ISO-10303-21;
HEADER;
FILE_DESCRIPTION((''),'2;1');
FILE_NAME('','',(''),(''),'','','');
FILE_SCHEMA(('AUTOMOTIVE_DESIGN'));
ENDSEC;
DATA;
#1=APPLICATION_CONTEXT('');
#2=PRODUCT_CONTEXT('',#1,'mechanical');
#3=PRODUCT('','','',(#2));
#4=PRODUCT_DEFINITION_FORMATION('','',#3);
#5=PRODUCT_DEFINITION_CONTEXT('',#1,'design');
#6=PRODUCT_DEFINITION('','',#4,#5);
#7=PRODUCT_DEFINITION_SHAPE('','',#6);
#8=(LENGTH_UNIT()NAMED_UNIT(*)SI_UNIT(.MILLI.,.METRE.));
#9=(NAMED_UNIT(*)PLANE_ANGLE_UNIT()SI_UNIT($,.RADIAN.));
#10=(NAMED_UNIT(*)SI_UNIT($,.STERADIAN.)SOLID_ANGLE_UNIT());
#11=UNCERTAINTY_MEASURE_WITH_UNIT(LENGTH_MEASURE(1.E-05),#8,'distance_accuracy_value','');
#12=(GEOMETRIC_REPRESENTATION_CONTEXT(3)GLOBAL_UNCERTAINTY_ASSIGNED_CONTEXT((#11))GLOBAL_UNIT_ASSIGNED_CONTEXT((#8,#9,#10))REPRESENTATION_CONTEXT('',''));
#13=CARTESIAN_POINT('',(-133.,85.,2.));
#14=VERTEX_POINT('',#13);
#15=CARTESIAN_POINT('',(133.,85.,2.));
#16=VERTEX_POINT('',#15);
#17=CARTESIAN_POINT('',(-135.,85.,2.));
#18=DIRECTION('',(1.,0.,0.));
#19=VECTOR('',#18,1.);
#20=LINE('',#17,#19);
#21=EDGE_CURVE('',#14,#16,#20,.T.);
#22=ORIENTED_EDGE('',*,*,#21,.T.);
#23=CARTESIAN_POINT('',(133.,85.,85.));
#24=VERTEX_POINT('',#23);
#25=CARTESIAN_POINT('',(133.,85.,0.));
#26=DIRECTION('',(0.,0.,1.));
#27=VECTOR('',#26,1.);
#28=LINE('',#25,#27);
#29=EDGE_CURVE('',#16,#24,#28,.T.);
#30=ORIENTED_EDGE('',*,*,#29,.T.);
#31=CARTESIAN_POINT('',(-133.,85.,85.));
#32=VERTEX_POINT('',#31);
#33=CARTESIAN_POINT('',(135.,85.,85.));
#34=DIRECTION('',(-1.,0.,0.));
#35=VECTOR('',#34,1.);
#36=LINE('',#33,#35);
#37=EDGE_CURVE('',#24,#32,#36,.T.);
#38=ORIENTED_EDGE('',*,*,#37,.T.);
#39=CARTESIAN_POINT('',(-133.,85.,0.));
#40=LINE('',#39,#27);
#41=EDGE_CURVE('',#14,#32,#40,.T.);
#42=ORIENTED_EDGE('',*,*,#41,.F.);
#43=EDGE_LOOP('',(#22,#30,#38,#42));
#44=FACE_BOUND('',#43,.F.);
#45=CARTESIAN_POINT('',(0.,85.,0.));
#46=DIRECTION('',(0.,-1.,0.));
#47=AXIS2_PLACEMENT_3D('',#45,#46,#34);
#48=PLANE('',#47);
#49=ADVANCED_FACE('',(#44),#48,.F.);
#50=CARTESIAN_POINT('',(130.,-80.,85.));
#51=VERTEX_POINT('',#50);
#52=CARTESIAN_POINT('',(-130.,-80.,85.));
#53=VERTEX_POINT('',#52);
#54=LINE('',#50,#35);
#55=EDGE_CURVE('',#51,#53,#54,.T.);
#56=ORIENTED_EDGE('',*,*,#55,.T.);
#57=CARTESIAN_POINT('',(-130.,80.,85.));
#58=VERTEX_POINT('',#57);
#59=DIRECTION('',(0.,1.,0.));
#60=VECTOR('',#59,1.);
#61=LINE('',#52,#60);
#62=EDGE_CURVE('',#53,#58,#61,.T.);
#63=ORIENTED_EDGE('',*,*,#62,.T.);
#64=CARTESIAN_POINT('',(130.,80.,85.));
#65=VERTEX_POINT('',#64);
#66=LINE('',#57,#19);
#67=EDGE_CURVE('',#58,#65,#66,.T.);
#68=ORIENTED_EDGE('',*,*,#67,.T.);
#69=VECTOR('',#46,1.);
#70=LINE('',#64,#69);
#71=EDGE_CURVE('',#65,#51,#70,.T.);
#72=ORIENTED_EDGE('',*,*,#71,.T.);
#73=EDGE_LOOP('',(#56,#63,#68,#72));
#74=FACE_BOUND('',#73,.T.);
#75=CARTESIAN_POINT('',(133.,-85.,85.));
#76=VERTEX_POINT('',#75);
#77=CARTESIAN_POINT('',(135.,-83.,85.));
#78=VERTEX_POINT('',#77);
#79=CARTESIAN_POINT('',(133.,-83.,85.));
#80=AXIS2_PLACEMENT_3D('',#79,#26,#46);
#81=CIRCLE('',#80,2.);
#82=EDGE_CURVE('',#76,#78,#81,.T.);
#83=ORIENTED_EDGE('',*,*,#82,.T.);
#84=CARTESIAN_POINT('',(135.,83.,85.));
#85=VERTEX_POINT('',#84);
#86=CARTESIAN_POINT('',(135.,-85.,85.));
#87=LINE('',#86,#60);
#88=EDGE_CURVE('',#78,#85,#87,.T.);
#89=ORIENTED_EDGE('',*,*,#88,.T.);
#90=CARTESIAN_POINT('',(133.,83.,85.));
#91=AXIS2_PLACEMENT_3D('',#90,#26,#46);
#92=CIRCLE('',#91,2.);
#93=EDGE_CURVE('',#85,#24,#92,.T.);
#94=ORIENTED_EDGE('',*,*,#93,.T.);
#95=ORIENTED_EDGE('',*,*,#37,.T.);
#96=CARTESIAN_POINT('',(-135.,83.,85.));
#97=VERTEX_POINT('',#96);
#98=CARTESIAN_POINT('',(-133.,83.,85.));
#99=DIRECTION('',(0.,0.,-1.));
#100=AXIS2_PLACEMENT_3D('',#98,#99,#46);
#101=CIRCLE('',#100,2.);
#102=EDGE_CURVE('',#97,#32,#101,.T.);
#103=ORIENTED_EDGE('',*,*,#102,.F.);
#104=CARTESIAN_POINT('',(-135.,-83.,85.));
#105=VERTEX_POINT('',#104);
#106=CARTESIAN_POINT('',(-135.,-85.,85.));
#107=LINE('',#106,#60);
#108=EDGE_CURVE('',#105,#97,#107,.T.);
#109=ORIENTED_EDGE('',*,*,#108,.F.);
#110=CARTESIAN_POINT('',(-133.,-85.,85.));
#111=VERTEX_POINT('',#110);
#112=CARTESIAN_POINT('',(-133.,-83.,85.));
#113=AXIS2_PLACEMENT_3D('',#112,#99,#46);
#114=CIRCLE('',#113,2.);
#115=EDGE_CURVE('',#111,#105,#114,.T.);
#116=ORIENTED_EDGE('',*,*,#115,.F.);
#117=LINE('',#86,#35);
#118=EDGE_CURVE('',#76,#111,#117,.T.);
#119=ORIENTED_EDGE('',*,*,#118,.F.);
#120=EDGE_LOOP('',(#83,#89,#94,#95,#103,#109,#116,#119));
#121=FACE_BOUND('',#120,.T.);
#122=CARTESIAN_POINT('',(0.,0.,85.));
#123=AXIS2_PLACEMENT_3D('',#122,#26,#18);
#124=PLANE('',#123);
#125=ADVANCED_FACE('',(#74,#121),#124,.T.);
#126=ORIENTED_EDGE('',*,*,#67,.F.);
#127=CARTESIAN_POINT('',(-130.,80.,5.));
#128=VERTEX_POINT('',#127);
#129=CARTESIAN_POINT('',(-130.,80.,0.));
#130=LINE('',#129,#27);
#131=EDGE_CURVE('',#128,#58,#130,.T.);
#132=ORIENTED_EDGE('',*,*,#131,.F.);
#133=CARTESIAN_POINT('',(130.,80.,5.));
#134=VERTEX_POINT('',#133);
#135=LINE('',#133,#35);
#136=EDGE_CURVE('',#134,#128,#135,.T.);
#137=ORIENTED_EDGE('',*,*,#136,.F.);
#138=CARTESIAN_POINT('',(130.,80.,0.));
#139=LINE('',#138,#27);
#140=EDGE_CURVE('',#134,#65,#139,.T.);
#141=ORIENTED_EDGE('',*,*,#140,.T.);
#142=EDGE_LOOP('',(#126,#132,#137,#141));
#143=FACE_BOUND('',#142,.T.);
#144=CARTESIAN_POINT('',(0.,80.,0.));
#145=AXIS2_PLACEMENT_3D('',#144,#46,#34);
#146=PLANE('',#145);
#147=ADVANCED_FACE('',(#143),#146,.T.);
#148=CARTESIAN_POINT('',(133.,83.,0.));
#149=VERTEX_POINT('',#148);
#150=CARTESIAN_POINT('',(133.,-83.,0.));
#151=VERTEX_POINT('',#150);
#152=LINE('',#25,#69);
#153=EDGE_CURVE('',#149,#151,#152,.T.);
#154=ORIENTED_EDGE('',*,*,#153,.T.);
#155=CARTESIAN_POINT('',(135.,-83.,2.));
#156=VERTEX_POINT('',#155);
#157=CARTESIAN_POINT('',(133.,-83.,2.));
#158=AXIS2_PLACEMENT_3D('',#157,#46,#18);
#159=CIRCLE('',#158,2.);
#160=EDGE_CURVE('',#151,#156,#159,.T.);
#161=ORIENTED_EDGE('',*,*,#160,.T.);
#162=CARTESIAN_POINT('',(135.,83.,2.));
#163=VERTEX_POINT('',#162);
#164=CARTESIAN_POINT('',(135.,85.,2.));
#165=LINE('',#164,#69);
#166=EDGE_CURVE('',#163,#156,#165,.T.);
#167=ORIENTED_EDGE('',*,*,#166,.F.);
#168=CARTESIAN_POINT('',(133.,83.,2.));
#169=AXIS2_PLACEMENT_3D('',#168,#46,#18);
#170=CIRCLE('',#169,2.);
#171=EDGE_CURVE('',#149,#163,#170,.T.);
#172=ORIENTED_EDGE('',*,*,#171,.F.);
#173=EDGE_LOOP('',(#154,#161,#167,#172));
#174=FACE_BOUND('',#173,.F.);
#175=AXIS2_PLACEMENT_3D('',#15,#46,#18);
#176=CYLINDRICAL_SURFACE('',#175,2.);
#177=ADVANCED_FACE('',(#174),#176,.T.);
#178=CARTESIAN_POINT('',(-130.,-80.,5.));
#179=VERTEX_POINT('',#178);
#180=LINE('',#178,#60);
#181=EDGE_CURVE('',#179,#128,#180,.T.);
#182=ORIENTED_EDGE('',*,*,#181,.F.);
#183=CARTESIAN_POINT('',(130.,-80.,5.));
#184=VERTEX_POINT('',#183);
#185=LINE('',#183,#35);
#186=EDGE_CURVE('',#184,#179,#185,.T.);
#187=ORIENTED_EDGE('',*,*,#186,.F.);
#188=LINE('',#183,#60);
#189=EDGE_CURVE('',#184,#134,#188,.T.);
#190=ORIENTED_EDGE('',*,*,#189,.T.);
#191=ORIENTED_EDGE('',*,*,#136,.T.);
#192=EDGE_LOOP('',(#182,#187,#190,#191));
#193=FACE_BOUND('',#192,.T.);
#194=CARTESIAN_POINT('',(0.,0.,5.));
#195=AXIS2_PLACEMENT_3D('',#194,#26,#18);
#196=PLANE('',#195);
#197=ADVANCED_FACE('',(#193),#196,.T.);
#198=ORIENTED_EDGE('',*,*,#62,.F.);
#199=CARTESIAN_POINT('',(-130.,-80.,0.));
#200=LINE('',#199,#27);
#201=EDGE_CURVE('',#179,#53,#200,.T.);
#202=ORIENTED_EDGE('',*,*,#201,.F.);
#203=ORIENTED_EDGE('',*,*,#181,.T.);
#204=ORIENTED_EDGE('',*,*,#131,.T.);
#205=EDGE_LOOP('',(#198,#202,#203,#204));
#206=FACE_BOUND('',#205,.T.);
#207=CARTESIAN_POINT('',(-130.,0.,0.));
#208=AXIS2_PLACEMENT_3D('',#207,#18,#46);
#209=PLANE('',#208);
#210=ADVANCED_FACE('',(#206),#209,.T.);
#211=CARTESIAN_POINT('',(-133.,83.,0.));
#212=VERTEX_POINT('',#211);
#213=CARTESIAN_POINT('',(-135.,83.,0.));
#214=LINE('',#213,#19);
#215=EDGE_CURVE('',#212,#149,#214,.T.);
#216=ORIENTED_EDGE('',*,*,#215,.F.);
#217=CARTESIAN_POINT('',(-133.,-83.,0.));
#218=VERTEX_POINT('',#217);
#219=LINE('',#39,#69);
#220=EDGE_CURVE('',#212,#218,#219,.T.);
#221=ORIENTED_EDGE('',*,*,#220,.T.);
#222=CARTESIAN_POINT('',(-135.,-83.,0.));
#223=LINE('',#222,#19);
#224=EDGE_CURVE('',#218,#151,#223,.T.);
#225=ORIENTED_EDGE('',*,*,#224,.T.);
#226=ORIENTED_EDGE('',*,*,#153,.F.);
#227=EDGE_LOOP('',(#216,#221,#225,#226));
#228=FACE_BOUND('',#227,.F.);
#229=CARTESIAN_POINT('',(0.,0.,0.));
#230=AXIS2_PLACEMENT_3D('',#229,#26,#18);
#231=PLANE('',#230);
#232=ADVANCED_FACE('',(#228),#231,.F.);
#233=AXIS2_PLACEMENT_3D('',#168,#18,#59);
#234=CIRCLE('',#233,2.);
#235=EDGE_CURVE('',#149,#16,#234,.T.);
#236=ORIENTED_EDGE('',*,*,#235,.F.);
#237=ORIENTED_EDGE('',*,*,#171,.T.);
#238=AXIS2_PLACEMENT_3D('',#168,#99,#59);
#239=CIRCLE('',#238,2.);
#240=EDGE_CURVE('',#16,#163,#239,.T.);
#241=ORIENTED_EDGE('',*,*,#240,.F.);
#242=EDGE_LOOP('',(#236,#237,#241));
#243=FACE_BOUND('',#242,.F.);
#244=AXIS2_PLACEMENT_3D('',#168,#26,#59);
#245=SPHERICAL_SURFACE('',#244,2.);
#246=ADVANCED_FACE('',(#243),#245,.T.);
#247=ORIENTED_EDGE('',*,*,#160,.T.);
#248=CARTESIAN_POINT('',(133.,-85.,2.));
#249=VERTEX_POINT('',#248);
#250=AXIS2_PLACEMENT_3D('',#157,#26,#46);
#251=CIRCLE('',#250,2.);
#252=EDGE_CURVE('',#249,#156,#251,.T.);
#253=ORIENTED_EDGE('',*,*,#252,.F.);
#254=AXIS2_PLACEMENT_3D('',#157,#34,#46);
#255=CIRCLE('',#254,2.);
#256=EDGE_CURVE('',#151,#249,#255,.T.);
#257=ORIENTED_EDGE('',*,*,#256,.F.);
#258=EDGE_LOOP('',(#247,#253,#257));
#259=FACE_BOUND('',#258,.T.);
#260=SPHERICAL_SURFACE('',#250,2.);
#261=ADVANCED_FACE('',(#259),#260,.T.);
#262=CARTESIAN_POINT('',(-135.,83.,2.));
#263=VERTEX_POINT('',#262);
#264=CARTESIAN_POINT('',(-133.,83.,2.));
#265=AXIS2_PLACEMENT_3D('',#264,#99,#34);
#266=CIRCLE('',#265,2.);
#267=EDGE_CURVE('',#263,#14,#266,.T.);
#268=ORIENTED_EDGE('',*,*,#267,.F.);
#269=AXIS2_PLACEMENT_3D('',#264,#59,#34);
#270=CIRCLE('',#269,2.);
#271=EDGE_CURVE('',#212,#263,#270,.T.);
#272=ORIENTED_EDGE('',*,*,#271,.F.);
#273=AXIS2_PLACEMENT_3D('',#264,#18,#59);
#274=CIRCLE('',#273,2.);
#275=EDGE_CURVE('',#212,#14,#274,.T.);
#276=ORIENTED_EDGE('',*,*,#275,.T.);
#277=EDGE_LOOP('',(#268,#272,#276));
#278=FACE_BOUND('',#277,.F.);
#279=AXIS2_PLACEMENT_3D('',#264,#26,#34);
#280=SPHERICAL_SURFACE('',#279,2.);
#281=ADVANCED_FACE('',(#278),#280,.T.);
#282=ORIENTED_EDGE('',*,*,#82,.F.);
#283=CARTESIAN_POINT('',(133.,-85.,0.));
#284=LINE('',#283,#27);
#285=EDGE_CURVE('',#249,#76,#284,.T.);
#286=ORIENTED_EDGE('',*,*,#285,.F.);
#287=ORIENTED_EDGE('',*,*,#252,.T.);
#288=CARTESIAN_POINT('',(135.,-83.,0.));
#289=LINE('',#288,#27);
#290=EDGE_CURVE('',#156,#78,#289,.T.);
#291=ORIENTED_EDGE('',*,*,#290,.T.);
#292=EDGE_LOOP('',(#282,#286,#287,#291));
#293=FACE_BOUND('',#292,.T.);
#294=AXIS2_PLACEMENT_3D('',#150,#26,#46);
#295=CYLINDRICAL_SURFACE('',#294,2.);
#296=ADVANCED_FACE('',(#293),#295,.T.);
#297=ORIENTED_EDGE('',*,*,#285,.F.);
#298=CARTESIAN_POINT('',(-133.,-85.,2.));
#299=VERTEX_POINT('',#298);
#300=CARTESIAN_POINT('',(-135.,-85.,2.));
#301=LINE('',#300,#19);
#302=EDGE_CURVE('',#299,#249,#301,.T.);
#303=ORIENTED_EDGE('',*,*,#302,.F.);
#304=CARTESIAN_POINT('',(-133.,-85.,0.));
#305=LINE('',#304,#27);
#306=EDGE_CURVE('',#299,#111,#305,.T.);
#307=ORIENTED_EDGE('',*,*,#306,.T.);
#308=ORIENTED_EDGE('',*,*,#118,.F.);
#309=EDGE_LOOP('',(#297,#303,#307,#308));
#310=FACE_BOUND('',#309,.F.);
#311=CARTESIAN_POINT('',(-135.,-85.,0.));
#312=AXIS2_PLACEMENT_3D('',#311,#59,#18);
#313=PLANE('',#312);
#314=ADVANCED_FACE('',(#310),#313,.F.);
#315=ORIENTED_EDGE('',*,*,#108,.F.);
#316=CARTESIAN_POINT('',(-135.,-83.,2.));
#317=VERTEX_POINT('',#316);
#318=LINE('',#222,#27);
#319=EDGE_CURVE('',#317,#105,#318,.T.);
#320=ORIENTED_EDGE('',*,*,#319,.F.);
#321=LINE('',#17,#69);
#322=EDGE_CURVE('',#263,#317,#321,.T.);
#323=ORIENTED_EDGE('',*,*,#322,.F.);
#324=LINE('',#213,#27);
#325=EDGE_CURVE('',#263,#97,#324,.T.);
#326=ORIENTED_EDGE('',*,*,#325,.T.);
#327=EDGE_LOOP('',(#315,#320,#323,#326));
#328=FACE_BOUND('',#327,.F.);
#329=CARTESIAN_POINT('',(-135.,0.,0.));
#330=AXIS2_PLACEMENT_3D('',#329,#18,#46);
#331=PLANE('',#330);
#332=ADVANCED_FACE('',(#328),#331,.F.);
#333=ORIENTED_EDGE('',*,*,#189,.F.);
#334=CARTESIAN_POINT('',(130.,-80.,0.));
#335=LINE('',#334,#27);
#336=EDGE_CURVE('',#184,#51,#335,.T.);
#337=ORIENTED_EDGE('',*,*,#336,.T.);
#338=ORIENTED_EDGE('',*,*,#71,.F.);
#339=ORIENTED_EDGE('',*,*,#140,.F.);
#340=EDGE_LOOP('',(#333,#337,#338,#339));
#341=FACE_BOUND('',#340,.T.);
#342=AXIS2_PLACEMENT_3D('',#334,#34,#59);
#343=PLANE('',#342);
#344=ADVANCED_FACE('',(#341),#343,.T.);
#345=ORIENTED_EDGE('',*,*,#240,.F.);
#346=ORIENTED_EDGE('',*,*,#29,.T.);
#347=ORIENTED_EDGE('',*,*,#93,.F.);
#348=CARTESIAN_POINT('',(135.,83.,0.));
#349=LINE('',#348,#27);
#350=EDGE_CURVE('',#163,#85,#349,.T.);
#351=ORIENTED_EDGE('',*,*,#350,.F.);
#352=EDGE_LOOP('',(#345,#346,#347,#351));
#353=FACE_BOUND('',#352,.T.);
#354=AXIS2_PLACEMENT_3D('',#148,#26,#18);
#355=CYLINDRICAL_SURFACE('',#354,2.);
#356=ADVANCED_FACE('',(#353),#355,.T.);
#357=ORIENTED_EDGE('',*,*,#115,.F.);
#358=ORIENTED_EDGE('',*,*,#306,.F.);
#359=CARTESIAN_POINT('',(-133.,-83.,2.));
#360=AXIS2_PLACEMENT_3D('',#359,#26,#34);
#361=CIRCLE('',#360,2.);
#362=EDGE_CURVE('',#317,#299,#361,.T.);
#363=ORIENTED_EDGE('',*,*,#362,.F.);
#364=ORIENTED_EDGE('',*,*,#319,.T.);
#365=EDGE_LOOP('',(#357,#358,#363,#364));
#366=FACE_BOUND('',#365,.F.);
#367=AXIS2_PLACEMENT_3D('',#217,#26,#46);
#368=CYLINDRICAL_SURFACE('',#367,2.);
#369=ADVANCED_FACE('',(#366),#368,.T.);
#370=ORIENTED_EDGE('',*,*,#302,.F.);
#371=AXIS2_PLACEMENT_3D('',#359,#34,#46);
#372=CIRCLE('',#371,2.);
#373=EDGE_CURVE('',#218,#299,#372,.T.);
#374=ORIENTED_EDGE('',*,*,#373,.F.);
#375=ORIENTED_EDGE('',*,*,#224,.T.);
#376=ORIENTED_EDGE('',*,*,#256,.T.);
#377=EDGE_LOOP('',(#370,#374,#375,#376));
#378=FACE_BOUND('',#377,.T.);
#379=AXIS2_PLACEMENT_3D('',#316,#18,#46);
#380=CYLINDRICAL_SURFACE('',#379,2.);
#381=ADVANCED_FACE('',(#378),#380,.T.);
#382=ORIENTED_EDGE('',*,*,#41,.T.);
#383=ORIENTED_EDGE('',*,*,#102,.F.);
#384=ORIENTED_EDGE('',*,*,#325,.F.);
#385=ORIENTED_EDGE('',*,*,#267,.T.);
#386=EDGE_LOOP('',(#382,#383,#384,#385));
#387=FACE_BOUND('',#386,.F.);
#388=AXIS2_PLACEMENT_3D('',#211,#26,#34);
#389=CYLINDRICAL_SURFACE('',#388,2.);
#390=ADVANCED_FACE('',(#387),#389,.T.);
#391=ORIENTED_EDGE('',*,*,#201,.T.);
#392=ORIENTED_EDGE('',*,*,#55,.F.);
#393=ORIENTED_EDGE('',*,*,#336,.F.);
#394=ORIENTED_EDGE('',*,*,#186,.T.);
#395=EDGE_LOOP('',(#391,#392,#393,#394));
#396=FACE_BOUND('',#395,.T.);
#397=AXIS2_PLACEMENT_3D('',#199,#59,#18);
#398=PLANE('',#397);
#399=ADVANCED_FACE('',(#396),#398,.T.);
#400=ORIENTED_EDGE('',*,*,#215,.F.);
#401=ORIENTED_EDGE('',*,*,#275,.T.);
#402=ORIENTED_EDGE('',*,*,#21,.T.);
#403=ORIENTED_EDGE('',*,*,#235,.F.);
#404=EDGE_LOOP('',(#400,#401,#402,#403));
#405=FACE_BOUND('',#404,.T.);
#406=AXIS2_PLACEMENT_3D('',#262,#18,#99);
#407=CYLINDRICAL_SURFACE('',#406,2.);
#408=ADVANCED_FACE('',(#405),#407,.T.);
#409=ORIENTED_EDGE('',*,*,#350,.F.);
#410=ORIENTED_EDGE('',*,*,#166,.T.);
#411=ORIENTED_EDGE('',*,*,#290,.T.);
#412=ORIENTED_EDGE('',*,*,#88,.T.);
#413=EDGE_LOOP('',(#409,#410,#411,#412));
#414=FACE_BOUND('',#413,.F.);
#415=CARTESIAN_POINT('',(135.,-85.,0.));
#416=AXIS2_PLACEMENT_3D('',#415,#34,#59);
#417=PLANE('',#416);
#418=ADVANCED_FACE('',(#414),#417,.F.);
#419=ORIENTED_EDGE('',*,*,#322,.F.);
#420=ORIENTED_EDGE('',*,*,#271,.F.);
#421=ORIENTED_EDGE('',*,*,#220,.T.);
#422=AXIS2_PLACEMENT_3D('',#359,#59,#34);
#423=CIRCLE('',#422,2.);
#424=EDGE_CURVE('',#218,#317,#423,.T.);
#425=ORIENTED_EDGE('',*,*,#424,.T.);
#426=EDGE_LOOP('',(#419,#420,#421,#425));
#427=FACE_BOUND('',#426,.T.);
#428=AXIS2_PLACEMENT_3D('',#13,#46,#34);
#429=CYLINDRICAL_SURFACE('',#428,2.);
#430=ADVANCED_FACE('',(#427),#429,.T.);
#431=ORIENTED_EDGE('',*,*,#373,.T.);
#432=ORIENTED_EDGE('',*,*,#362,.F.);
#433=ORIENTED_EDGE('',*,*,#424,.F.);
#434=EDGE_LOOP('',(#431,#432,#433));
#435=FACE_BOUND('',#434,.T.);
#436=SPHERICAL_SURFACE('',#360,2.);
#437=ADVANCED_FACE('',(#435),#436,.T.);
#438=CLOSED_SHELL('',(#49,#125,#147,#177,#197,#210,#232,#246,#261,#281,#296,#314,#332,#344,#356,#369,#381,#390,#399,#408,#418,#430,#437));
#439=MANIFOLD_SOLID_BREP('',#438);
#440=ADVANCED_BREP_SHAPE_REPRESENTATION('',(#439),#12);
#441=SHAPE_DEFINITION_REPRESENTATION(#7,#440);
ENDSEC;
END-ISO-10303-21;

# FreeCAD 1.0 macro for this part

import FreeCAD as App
import Part
import Sketcher

V = App.Vector
Q = App.Units.Quantity


def edges_at(feature, points):
    """Names of the edges that pass closest to the given points."""
    edges = feature.Shape.Edges
    near = lambda p: min(range(len(edges)), key=lambda i: edges[i].distToShape(Part.Vertex(*p))[0])
    return sorted({f"Edge{near(p) + 1}" for p in points})

doc = App.newDocument("Part")
params = doc.addObject("Spreadsheet::Sheet", "Params")
for row, (alias, value) in enumerate([
    ("sketch1_width", "270 mm"),
    ("sketch1_width2", "260 mm"),
    ("sketch1_height", "170 mm"),
    ("sketch1_height2", "160 mm"),
    ("pad1_length", "85 mm"),
    ("sketch2_width", "260 mm"),
    ("sketch2_height", "160 mm"),
    ("pad2_length", "5 mm"),
    ("fillet_radius", "2 mm"),
], start=1):
    params.set(f"A{row}", alias)
    params.set(f"B{row}", "=" + value)
    params.setAlias(f"B{row}", alias)

body = doc.addObject("PartDesign::Body", "Body")

# Sketch on XY plane
sketch1 = body.newObject("Sketcher::SketchObject", "Sketch")
sketch1.AttachmentSupport = (doc.getObject("XY_Plane"), [""])
sketch1.MapMode = "FlatFace"
sketch1.addGeometry([
    Part.LineSegment(V(-135, -85, 0), V(135, -85, 0)),  # 0
    Part.LineSegment(V(135, -85, 0), V(135, 85, 0)),  # 1
    Part.LineSegment(V(135, 85, 0), V(-135, 85, 0)),  # 2
    Part.LineSegment(V(-135, 85, 0), V(-135, -85, 0)),  # 3
    Part.LineSegment(V(-130, -80, 0), V(-130, 80, 0)),  # 4
    Part.LineSegment(V(-130, 80, 0), V(130, 80, 0)),  # 5
    Part.LineSegment(V(130, 80, 0), V(130, -80, 0)),  # 6
    Part.LineSegment(V(130, -80, 0), V(-130, -80, 0)),  # 7
], False)
sketch1.addConstraint([
    Sketcher.Constraint("Coincident", 0, 2, 1, 1),
    Sketcher.Constraint("Coincident", 1, 2, 2, 1),
    Sketcher.Constraint("Coincident", 2, 2, 3, 1),
    Sketcher.Constraint("Coincident", 3, 2, 0, 1),
    Sketcher.Constraint("Coincident", 4, 2, 5, 1),
    Sketcher.Constraint("Coincident", 5, 2, 6, 1),
    Sketcher.Constraint("Coincident", 6, 2, 7, 1),
    Sketcher.Constraint("Coincident", 7, 2, 4, 1),
    Sketcher.Constraint("Horizontal", 0),
    Sketcher.Constraint("Vertical", 1),
    Sketcher.Constraint("Horizontal", 2),
    Sketcher.Constraint("Vertical", 3),
    Sketcher.Constraint("Vertical", 4),
    Sketcher.Constraint("Horizontal", 5),
    Sketcher.Constraint("Vertical", 6),
    Sketcher.Constraint("Horizontal", 7),
    Sketcher.Constraint("Symmetric", 0, 2, 2, 2, -1, 1),
    Sketcher.Constraint("Symmetric", 4, 2, 6, 2, -1, 1),
    Sketcher.Constraint("DistanceX", 0, 1, 0, 2, Q("270 mm")),
    Sketcher.Constraint("DistanceX", 5, 1, 5, 2, Q("260 mm")),
    Sketcher.Constraint("DistanceY", 1, 1, 1, 2, Q("170 mm")),
    Sketcher.Constraint("DistanceY", 4, 1, 4, 2, Q("160 mm")),
])
sketch1.setExpression("Constraints[18]", "Params.sketch1_width")
sketch1.setExpression("Constraints[19]", "Params.sketch1_width2")
sketch1.setExpression("Constraints[20]", "Params.sketch1_height")
sketch1.setExpression("Constraints[21]", "Params.sketch1_height2")
pad1 = body.newObject("PartDesign::Pad", "Pad")
pad1.Profile = sketch1
pad1.setExpression("Length", "Params.pad1_length")

# Sketch on XY plane
sketch2 = body.newObject("Sketcher::SketchObject", "Sketch001")
sketch2.AttachmentSupport = (doc.getObject("XY_Plane"), [""])
sketch2.MapMode = "FlatFace"
sketch2.addGeometry([
    Part.LineSegment(V(-130, -80, 0), V(130, -80, 0)),
    Part.LineSegment(V(130, -80, 0), V(130, 80, 0)),
    Part.LineSegment(V(130, 80, 0), V(-130, 80, 0)),
    Part.LineSegment(V(-130, 80, 0), V(-130, -80, 0)),
], False)
sketch2.addConstraint([
    Sketcher.Constraint("Coincident", 0, 2, 1, 1),
    Sketcher.Constraint("Coincident", 1, 2, 2, 1),
    Sketcher.Constraint("Coincident", 2, 2, 3, 1),
    Sketcher.Constraint("Coincident", 3, 2, 0, 1),
    Sketcher.Constraint("Horizontal", 0),
    Sketcher.Constraint("Vertical", 1),
    Sketcher.Constraint("Horizontal", 2),
    Sketcher.Constraint("Vertical", 3),
    Sketcher.Constraint("Symmetric", 0, 2, 2, 2, -1, 1),
    Sketcher.Constraint("DistanceX", 0, 1, 0, 2, Q("260 mm")),
    Sketcher.Constraint("DistanceY", 1, 1, 1, 2, Q("160 mm")),
])
sketch2.setExpression("Constraints[9]", "Params.sketch2_width")
sketch2.setExpression("Constraints[10]", "Params.sketch2_height")
pad2 = body.newObject("PartDesign::Pad", "Pad001")
pad2.Profile = sketch2
pad2.setExpression("Length", "Params.pad2_length")
doc.recompute()

fillet = body.newObject("PartDesign::Fillet", "Fillet")
fillet.Base = (pad2, edges_at(pad2, [
    (135, -85, 42.5),
    (135, 85, 42.5),
    (-135, 85, 42.5),
    (-135, -85, 42.5),
    (-135, 0, 0),
    (0, 85, 0),
    (0, -85, 0),
    (135, 0, 0),
]))
fillet.setExpression("Radius", "Params.fillet_radius")

doc.recompute()
